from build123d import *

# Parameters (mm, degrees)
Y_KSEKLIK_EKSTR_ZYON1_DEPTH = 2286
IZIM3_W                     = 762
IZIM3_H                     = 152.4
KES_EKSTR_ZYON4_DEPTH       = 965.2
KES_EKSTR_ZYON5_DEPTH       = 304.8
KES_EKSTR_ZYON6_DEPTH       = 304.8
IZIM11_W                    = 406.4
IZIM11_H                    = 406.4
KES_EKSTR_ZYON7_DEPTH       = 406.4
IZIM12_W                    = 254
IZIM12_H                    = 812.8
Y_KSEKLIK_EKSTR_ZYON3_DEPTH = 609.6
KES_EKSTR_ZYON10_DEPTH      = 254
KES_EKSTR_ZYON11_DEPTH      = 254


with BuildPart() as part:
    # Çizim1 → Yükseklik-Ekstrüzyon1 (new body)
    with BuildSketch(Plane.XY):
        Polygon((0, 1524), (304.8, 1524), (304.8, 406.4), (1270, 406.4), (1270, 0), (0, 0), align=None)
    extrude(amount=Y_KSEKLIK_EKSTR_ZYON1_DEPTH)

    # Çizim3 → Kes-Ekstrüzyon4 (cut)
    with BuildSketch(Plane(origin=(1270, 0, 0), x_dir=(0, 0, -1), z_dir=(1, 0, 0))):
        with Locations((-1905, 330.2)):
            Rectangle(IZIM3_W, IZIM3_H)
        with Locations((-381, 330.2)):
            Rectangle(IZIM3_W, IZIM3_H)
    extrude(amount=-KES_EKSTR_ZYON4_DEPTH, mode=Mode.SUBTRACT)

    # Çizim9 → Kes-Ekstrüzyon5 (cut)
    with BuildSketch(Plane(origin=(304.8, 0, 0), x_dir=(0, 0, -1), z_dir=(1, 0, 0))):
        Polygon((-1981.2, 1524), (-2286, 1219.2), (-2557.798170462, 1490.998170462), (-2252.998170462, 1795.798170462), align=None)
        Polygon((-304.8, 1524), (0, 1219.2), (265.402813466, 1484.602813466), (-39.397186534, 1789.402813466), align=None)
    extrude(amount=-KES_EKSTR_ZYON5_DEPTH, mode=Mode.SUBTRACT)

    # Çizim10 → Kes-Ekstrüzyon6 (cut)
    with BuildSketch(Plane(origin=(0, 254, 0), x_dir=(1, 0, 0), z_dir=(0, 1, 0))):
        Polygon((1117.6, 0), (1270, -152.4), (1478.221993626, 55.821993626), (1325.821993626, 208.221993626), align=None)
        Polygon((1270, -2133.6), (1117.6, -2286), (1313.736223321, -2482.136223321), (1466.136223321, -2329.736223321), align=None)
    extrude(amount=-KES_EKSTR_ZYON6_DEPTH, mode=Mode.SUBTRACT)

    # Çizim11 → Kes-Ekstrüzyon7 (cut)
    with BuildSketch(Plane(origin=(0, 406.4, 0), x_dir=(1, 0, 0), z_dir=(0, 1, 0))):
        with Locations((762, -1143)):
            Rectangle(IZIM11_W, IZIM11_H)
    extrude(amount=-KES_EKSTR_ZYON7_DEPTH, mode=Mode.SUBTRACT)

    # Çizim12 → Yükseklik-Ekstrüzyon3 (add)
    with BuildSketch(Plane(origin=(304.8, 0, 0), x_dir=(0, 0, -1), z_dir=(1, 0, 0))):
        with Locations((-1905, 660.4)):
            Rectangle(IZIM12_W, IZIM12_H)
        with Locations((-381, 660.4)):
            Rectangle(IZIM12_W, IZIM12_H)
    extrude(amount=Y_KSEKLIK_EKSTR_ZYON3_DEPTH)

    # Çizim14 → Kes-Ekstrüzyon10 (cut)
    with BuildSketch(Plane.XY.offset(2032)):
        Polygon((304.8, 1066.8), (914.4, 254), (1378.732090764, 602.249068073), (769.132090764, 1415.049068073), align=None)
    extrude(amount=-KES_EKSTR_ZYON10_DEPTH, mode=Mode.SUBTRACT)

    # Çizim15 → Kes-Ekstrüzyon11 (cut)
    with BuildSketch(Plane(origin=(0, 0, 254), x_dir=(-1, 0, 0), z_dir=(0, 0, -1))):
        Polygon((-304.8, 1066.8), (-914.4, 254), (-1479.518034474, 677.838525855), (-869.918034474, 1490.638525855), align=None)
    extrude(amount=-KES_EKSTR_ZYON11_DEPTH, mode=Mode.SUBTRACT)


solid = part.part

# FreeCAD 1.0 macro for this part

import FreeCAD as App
import Part
import Sketcher
from FreeCAD import Vector
Q = App.Units.Quantity


def add_polygon(sketch, points):
    """Adds a closed chain of lines whose ends are joined by coincident constraints."""
    first, n = sketch.GeometryCount, len(points)
    for a, b in zip(points, points[1:] + points[:1]):
        sketch.addGeometry(Part.LineSegment(App.Vector(*a, 0), App.Vector(*b, 0)), False)
    for i in range(n):
        sketch.addConstraint(Sketcher.Constraint("Coincident", first + i, 2, first + (i + 1) % n, 1))

doc = App.newDocument("Part")
body = doc.addObject("PartDesign::Body", "Body")

sketch1 = body.newObject("Sketcher::SketchObject", "Sketch")
sketch1.AttachmentSupport = (doc.getObject("XY_Plane"), [""])
sketch1.MapMode = "FlatFace"
add_polygon(sketch1, [(305, 1524), (0, 1524), (0, 0), (1270, 0), (1270, 406), (305, 406)])
sketch1.addConstraint(Sketcher.Constraint("Horizontal", 0))
sketch1.addConstraint(Sketcher.Constraint("Vertical", 1))
sketch1.addConstraint(Sketcher.Constraint("Horizontal", 2))
sketch1.addConstraint(Sketcher.Constraint("Vertical", 3))
sketch1.addConstraint(Sketcher.Constraint("Horizontal", 4))
sketch1.addConstraint(Sketcher.Constraint("Vertical", 5))
sketch1.addConstraint(Sketcher.Constraint("Coincident", 1, 2, -1, 1))
sketch1.addConstraint(Sketcher.Constraint("DistanceX", 0, 2, 0, 1, Q("12 in")))
sketch1.addConstraint(Sketcher.Constraint("DistanceX", 2, 1, 2, 2, Q("50 in")))
sketch1.addConstraint(Sketcher.Constraint("DistanceY", 1, 2, 1, 1, Q("60 in")))
sketch1.addConstraint(Sketcher.Constraint("DistanceY", 3, 1, 3, 2, Q("16 in")))
pad1 = body.newObject("PartDesign::Pad", "Pad")
pad1.Profile = sketch1
pad1.Length = Q("90 in")

sketch2 = body.newObject("Sketcher::SketchObject", "Sketch001")
sketch2.AttachmentSupport = (doc.getObject("YZ_Plane"), [""])
sketch2.MapMode = "FlatFace"
sketch2.AttachmentOffset = App.Placement(Vector(0, 0, 50 * 25.4), App.Rotation())
add_polygon(sketch2, [(406, 2286), (254, 2286), (254, 1524), (406, 1524)])
add_polygon(sketch2, [(406, 762), (254, 762), (254, 0), (406, 0)])
sketch2.addConstraint(Sketcher.Constraint("Horizontal", 0))
sketch2.addConstraint(Sketcher.Constraint("Vertical", 1))
sketch2.addConstraint(Sketcher.Constraint("Horizontal", 2))
sketch2.addConstraint(Sketcher.Constraint("Vertical", 3))
sketch2.addConstraint(Sketcher.Constraint("Horizontal", 4))
sketch2.addConstraint(Sketcher.Constraint("Vertical", 5))
sketch2.addConstraint(Sketcher.Constraint("Horizontal", 6))
sketch2.addConstraint(Sketcher.Constraint("Vertical", 7))
sketch2.addConstraint(Sketcher.Constraint("PointOnObject", 5, 2, -1))
sketch2.addConstraint(Sketcher.Constraint("Vertical", 1, 2, 4, 2))
sketch2.addConstraint(Sketcher.Constraint("Vertical", 3, 2, 6, 2))
sketch2.addConstraint(Sketcher.Constraint("Equal", 3, 5))
sketch2.addConstraint(Sketcher.Constraint("DistanceX", 0, 2, 0, 1, Q("6 in")))
sketch2.addConstraint(Sketcher.Constraint("DistanceY", 1, 2, 1, 1, Q("30 in")))
sketch2.addConstraint(Sketcher.Constraint("DistanceX", -1, 1, 0, 2, Q("10 in")))
sketch2.addConstraint(Sketcher.Constraint("DistanceY", -1, 1, 0, 2, Q("90 in")))
pocket1 = body.newObject("PartDesign::Pocket", "Pocket")
pocket1.Profile = sketch2
pocket1.Length = Q("38 in")

sketch3 = body.newObject("Sketcher::SketchObject", "Sketch002")
sketch3.AttachmentSupport = (doc.getObject("YZ_Plane"), [""])
sketch3.MapMode = "FlatFace"
sketch3.AttachmentOffset = App.Placement(Vector(0, 0, 12 * 25.4), App.Rotation())
add_polygon(sketch3, [(1219, 2286), (1524, 1981), (1796, 2253), (1491, 2558)])
add_polygon(sketch3, [(1524, 305), (1219, 0), (1485, -265), (1789, 39)])
sketch3.addConstraint(Sketcher.Constraint("PointOnObject", 4, 2, -1))
sketch3.addConstraint(Sketcher.Constraint("Perpendicular", 0, 1))
sketch3.addConstraint(Sketcher.Constraint("Perpendicular", 1, 2))
sketch3.addConstraint(Sketcher.Constraint("Perpendicular", 2, 3))
sketch3.addConstraint(Sketcher.Constraint("Parallel", 3, 4))
sketch3.addConstraint(Sketcher.Constraint("Perpendicular", 4, 5))
sketch3.addConstraint(Sketcher.Constraint("Perpendicular", 5, 6))
sketch3.addConstraint(Sketcher.Constraint("Perpendicular", 6, 7))
sketch3.addConstraint(Sketcher.Constraint("Vertical", 3, 2, 4, 2))
sketch3.addConstraint(Sketcher.Constraint("Vertical", 0, 2, 7, 2))
sketch3.addConstraint(Sketcher.Constraint("Equal", 2, 4))
sketch3.addConstraint(Sketcher.Constraint("DistanceX", -1, 1, 0, 2, Q("60 in")))
sketch3.addConstraint(Sketcher.Constraint("DistanceY", -1, 1, 0, 2, Q("78 in")))
sketch3.addConstraint(Sketcher.Constraint("DistanceX", -1, 1, 3, 2, Q("48 in")))
sketch3.addConstraint(Sketcher.Constraint("Distance", 1, 384.380659))
sketch3.addConstraint(Sketcher.Constraint("Distance", 5, 375.336258))
pocket2 = body.newObject("PartDesign::Pocket", "Pocket001")
pocket2.Profile = sketch3
pocket2.Length = Q("12 in")

sketch4 = body.newObject("Sketcher::SketchObject", "Sketch003")
sketch4.AttachmentSupport = (doc.getObject("XZ_Plane"), [""])
sketch4.MapMode = "FlatFace"
sketch4.AttachmentOffset = App.Placement(Vector(0, 0, -10 * 25.4), App.Rotation())
add_polygon(sketch4, [(1118, 0), (1270, 152), (1478, -56), (1326, -208)])
add_polygon(sketch4, [(1270, 2134), (1118, 2286), (1314, 2482), (1466, 2330)])
sketch4.addConstraint(Sketcher.Constraint("PointOnObject", 3, 2, -1))
sketch4.addConstraint(Sketcher.Constraint("Perpendicular", 0, 1))
sketch4.addConstraint(Sketcher.Constraint("Perpendicular", 1, 2))
sketch4.addConstraint(Sketcher.Constraint("Perpendicular", 2, 3))
sketch4.addConstraint(Sketcher.Constraint("Parallel", 3, 4))
sketch4.addConstraint(Sketcher.Constraint("Perpendicular", 4, 5))
sketch4.addConstraint(Sketcher.Constraint("Perpendicular", 5, 6))
sketch4.addConstraint(Sketcher.Constraint("Perpendicular", 6, 7))
sketch4.addConstraint(Sketcher.Constraint("Vertical", 3, 2, 4, 2))
sketch4.addConstraint(Sketcher.Constraint("Vertical", 0, 2, 7, 2))
sketch4.addConstraint(Sketcher.Constraint("Equal", 2, 4))
sketch4.addConstraint(Sketcher.Constraint("DistanceX", -1, 1, 0, 2, Q("50 in")))
sketch4.addConstraint(Sketcher.Constraint("DistanceY", -1, 1, 0, 2, Q("6 in")))
sketch4.addConstraint(Sketcher.Constraint("DistanceY", -1, 1, 4, 2, Q("90 in")))
sketch4.addConstraint(Sketcher.Constraint("DistanceX", 5, 2, 1, 2, 164.48577))
sketch4.addConstraint(Sketcher.Constraint("Distance", 1, 294.470367))
pocket3 = body.newObject("PartDesign::Pocket", "Pocket002")
pocket3.Profile = sketch4
pocket3.Length = Q("12 in")
pocket3.Reversed = True

sketch5 = body.newObject("Sketcher::SketchObject", "Sketch004")
sketch5.AttachmentSupport = (doc.getObject("XZ_Plane"), [""])
sketch5.MapMode = "FlatFace"
sketch5.AttachmentOffset = App.Placement(Vector(0, 0, -16 * 25.4), App.Rotation())
add_polygon(sketch5, [(559, 940), (559, 1346), (965, 1346), (965, 940)])
sketch5.addConstraint(Sketcher.Constraint("Vertical", 0))
sketch5.addConstraint(Sketcher.Constraint("Horizontal", 1))
sketch5.addConstraint(Sketcher.Constraint("Vertical", 2))
sketch5.addConstraint(Sketcher.Constraint("Horizontal", 3))
sketch5.addConstraint(Sketcher.Constraint("Equal", 3, 0))
sketch5.addConstraint(Sketcher.Constraint("DistanceX", 1, 1, 1, 2, Q("16 in")))
sketch5.addConstraint(Sketcher.Constraint("DistanceX", -1, 1, 0, 2, Q("22 in")))
sketch5.addConstraint(Sketcher.Constraint("DistanceY", -1, 1, 0, 2, Q("53 in")))
pocket4 = body.newObject("PartDesign::Pocket", "Pocket003")
pocket4.Profile = sketch5
pocket4.Length = Q("16 in")
pocket4.Reversed = True

sketch6 = body.newObject("Sketcher::SketchObject", "Sketch005")
sketch6.AttachmentSupport = (doc.getObject("YZ_Plane"), [""])
sketch6.MapMode = "FlatFace"
sketch6.AttachmentOffset = App.Placement(Vector(0, 0, 12 * 25.4), App.Rotation())
add_polygon(sketch6, [(1067, 2032), (254, 2032), (254, 1778), (1067, 1778)])
add_polygon(sketch6, [(1067, 508), (254, 508), (254, 254), (1067, 254)])
sketch6.addConstraint(Sketcher.Constraint("Horizontal", 0))
sketch6.addConstraint(Sketcher.Constraint("Vertical", 1))
sketch6.addConstraint(Sketcher.Constraint("Horizontal", 2))
sketch6.addConstraint(Sketcher.Constraint("Vertical", 3))
sketch6.addConstraint(Sketcher.Constraint("Horizontal", 4))
sketch6.addConstraint(Sketcher.Constraint("Vertical", 5))
sketch6.addConstraint(Sketcher.Constraint("Horizontal", 6))
sketch6.addConstraint(Sketcher.Constraint("Vertical", 7))
sketch6.addConstraint(Sketcher.Constraint("Vertical", 1, 2, 4, 2))
sketch6.addConstraint(Sketcher.Constraint("Vertical", 3, 2, 6, 2))
sketch6.addConstraint(Sketcher.Constraint("Equal", 3, 5))
sketch6.addConstraint(Sketcher.Constraint("DistanceX", 0, 2, 0, 1, Q("32 in")))
sketch6.addConstraint(Sketcher.Constraint("DistanceY", 1, 2, 1, 1, Q("10 in")))
sketch6.addConstraint(Sketcher.Constraint("DistanceX", -1, 1, 0, 2, Q("10 in")))
sketch6.addConstraint(Sketcher.Constraint("DistanceY", -1, 1, 0, 2, Q("80 in")))
sketch6.addConstraint(Sketcher.Constraint("DistanceY", -1, 1, 4, 2, Q("20 in")))
pad2 = body.newObject("PartDesign::Pad", "Pad001")
pad2.Profile = sketch6
pad2.Length = Q("24 in")

sketch7 = body.newObject("Sketcher::SketchObject", "Sketch006")
sketch7.AttachmentSupport = (doc.getObject("XY_Plane"), [""])
sketch7.MapMode = "FlatFace"
sketch7.AttachmentOffset = App.Placement(Vector(0, 0, 80 * 25.4), App.Rotation())
add_polygon(sketch7, [(305, 1067), (914, 254), (1379, 602), (769, 1415)])
sketch7.addConstraint(Sketcher.Constraint("Perpendicular", 0, 1))
sketch7.addConstraint(Sketcher.Constraint("Perpendicular", 1, 2))
sketch7.addConstraint(Sketcher.Constraint("Perpendicular", 2, 3))
sketch7.addConstraint(Sketcher.Constraint("Distance", 0, Q("40 in")))
sketch7.addConstraint(Sketcher.Constraint("DistanceX", -1, 1, 0, 2, Q("36 in")))
sketch7.addConstraint(Sketcher.Constraint("DistanceY", -1, 1, 0, 2, Q("10 in")))
sketch7.addConstraint(Sketcher.Constraint("DistanceX", -1, 1, 3, 2, Q("12 in")))
sketch7.addConstraint(Sketcher.Constraint("DistanceX", -1, 1, 1, 2, 1378.732091))
pocket5 = body.newObject("PartDesign::Pocket", "Pocket004")
pocket5.Profile = sketch7
pocket5.Length = Q("10 in")

sketch8 = body.newObject("Sketcher::SketchObject", "Sketch007")
sketch8.AttachmentSupport = (doc.getObject("XY_Plane"), [""])
sketch8.MapMode = "FlatFace"
sketch8.AttachmentOffset = App.Placement(Vector(0, 0, 10 * 25.4), App.Rotation())
add_polygon(sketch8, [(914, 254), (305, 1067), (870, 1491), (1480, 678)])
sketch8.addConstraint(Sketcher.Constraint("Perpendicular", 0, 1))
sketch8.addConstraint(Sketcher.Constraint("Perpendicular", 1, 2))
sketch8.addConstraint(Sketcher.Constraint("Perpendicular", 2, 3))
sketch8.addConstraint(Sketcher.Constraint("Distance", 0, Q("40 in")))
sketch8.addConstraint(Sketcher.Constraint("DistanceX", -1, 1, 0, 2, Q("12 in")))
sketch8.addConstraint(Sketcher.Constraint("DistanceY", -1, 1, 0, 2, Q("42 in")))
sketch8.addConstraint(Sketcher.Constraint("DistanceX", -1, 1, 3, 2, Q("36 in")))
sketch8.addConstraint(Sketcher.Constraint("Distance", 1, 706.397543))
pocket6 = body.newObject("PartDesign::Pocket", "Pocket005")
pocket6.Profile = sketch8
pocket6.Length = Q("10 in")
pocket6.Reversed = True

doc.recompute()
